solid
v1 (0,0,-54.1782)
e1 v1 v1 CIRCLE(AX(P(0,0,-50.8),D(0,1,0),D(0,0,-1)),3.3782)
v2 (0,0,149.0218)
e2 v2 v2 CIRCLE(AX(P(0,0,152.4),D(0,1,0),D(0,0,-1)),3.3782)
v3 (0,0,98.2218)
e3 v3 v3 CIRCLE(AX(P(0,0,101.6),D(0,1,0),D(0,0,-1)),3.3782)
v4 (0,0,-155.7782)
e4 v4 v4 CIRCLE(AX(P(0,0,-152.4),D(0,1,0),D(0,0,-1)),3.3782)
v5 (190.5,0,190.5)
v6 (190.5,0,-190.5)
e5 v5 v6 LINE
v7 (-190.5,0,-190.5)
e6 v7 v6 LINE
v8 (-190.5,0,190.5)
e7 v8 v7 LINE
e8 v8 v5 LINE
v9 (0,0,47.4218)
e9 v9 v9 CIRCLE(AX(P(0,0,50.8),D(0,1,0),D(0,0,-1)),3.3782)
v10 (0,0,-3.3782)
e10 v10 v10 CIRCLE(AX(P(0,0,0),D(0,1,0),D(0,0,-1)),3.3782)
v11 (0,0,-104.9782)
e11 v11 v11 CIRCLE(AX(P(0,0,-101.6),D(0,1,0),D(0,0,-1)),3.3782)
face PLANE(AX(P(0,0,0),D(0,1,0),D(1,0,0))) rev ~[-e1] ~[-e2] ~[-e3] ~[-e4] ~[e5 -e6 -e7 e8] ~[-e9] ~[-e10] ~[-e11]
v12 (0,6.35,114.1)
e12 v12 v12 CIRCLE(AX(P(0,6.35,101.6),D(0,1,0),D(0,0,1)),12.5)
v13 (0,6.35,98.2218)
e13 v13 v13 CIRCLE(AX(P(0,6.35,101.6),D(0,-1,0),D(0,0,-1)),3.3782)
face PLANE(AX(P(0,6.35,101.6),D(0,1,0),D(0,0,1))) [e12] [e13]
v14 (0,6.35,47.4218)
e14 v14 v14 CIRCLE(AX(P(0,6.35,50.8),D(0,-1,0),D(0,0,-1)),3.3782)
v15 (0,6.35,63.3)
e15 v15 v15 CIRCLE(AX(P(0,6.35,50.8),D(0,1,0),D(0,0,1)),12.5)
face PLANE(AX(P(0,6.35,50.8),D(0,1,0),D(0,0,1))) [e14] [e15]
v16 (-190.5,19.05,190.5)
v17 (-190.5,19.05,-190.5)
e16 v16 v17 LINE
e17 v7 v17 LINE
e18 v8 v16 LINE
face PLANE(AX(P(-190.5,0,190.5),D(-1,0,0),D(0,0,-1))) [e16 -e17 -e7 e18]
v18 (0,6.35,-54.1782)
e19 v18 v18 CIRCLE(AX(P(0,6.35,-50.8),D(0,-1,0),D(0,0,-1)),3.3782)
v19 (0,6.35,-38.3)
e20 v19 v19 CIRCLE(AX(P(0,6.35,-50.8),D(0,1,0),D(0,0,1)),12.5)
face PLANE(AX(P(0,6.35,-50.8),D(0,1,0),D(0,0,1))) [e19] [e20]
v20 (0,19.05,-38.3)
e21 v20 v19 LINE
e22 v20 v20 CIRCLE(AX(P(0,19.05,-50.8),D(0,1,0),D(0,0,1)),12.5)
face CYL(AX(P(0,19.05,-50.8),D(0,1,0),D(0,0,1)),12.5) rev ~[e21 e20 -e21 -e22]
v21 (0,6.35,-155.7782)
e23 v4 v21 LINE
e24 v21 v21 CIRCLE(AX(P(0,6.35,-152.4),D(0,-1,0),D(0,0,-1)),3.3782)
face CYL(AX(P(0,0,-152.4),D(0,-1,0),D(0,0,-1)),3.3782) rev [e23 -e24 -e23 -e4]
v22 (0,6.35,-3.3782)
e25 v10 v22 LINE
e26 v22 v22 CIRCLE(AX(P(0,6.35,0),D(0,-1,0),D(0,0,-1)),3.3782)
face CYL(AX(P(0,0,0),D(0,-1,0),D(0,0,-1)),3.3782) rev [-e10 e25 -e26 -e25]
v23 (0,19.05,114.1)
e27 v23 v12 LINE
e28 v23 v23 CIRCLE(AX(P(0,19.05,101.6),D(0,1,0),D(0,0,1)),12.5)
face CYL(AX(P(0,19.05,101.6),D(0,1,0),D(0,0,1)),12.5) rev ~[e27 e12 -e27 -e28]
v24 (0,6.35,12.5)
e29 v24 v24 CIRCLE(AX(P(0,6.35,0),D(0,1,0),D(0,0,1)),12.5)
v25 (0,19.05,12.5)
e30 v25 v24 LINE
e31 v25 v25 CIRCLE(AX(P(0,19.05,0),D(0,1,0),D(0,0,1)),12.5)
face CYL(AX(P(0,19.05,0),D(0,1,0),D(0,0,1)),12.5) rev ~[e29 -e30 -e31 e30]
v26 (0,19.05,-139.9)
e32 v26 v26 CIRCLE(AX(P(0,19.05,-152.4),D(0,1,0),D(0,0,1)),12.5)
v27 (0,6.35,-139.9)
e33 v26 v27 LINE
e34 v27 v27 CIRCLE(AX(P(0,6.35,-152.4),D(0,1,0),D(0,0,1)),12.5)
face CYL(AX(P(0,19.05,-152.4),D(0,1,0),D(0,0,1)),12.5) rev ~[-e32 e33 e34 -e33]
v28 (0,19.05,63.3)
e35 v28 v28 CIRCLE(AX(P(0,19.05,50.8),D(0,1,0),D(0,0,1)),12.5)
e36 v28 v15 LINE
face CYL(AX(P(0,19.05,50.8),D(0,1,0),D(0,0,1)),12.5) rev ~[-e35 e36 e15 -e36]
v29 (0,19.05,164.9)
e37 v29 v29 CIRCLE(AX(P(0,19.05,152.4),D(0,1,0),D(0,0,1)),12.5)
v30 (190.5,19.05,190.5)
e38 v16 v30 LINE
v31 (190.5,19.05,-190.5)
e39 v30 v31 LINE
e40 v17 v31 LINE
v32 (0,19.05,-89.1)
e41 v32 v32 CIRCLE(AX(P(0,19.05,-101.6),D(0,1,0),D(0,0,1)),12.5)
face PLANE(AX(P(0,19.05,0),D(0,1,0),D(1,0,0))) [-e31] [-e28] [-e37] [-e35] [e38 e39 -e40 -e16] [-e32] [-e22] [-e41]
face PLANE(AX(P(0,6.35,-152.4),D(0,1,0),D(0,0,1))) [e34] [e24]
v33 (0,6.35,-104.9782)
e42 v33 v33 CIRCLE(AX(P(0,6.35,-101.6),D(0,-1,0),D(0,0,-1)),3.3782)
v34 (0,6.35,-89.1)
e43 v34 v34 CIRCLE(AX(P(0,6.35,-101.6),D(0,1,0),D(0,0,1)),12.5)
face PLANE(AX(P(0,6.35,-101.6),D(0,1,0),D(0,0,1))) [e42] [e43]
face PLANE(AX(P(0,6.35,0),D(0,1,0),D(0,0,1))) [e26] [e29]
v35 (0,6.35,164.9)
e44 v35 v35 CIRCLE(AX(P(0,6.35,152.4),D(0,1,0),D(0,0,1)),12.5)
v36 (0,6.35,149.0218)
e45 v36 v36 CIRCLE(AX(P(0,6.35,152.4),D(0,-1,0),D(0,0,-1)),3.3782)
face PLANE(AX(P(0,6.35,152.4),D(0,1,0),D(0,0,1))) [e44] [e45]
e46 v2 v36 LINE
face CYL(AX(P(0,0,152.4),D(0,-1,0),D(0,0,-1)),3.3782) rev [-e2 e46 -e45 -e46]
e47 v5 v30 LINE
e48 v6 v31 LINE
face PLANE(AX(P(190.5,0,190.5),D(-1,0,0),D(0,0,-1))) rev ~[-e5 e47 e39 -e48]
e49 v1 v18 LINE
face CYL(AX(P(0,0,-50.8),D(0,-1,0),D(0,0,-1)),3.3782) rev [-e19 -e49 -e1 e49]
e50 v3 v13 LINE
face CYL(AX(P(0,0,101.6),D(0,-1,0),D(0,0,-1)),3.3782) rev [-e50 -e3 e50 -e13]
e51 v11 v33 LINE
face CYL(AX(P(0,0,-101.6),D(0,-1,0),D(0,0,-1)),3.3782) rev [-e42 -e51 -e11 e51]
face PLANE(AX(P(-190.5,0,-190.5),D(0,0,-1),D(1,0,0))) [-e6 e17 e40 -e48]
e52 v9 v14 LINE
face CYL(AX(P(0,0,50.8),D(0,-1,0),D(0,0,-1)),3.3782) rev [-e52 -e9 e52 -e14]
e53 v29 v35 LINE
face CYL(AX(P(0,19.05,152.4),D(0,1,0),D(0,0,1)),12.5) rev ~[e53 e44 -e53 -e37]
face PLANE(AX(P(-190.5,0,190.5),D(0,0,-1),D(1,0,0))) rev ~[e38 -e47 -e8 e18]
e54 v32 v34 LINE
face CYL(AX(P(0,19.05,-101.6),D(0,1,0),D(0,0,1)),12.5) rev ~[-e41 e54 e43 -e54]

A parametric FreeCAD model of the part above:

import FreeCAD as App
import Part
import Sketcher
from FreeCAD import Vector
Q = App.Units.Quantity


def add_polygon(sketch, points):
    """Adds a closed chain of lines whose ends are joined by coincident constraints."""
    first, n = sketch.GeometryCount, len(points)
    for a, b in zip(points, points[1:] + points[:1]):
        sketch.addGeometry(Part.LineSegment(App.Vector(*a, 0), App.Vector(*b, 0)), False)
    for i in range(n):
        sketch.addConstraint(Sketcher.Constraint("Coincident", first + i, 2, first + (i + 1) % n, 1))

doc = App.newDocument("Part")
body = doc.addObject("PartDesign::Body", "Body")

# Sketch on XZ plane
sketch1 = body.newObject("Sketcher::SketchObject", "Sketch")
sketch1.AttachmentSupport = (doc.getObject("XZ_Plane"), [""])
sketch1.MapMode = "FlatFace"
add_polygon(sketch1, [(-190.5, -190.5), (-190.5, 190.5), (190.5, 190.5), (190.5, -190.5)])  # lines 0-3
sketch1.addGeometry(Part.Circle(Vector(0, 152.4, 0), Vector(0, 0, 1), 3.3782), False)  # 4
sketch1.addGeometry(Part.Circle(Vector(0, 101.6, 0), Vector(0, 0, 1), 3.3782), False)  # 5
sketch1.addGeometry(Part.Circle(Vector(0, 50.8, 0), Vector(0, 0, 1), 3.3782), False)  # 6
sketch1.addGeometry(Part.Circle(Vector(0, 0, 0), Vector(0, 0, 1), 3.3782), False)  # 7
sketch1.addGeometry(Part.Circle(Vector(0, -50.8, 0), Vector(0, 0, 1), 3.3782), False)  # 8
sketch1.addGeometry(Part.Circle(Vector(0, -101.6, 0), Vector(0, 0, 1), 3.3782), False)  # 9
sketch1.addGeometry(Part.Circle(Vector(0, -152.4, 0), Vector(0, 0, 1), 3.3782), False)  # 10
sketch1.addConstraint([
    Sketcher.Constraint("Vertical", 0),
    Sketcher.Constraint("Horizontal", 1),
    Sketcher.Constraint("Vertical", 2),
    Sketcher.Constraint("Horizontal", 3),
    Sketcher.Constraint("Coincident", 7, 3, -1, 1),
    Sketcher.Constraint("Equal", 4, 5),
    Sketcher.Constraint("Equal", 5, 6),
    Sketcher.Constraint("Equal", 6, 7),
    Sketcher.Constraint("Equal", 7, 8),
    Sketcher.Constraint("Equal", 8, 9),
    Sketcher.Constraint("Equal", 9, 10),
    Sketcher.Constraint("Symmetric", 6, 3, 8, 3, -1, 1),
    Sketcher.Constraint("Symmetric", 5, 3, 9, 3, -1, 1),
    Sketcher.Constraint("Symmetric", 4, 3, 10, 3, -1, 1),
    Sketcher.Constraint("Symmetric", 0, 2, 2, 2, -1, 1),
    Sketcher.Constraint("PointOnObject", 4, 3, -2),
    Sketcher.Constraint("PointOnObject", 5, 3, -2),
    Sketcher.Constraint("PointOnObject", 6, 3, -2),
    Sketcher.Constraint("Equal", 3, 0),
    Sketcher.Constraint("DistanceX", 1, 1, 1, 2, Q("15 in")),
    Sketcher.Constraint("Diameter", 4, Q("0.266 in")),
    Sketcher.Constraint("DistanceY", -1, 1, 4, 3, Q("6 in")),
    Sketcher.Constraint("DistanceY", -1, 1, 5, 3, Q("4 in")),
    Sketcher.Constraint("DistanceY", -1, 1, 6, 3, Q("2 in")),
])
pad1 = body.newObject("PartDesign::Pad", "Pad")
pad1.Profile = sketch1
pad1.Length = Q("0.75 in")
pad1.Reversed = True

# Sketch on XZ plane
sketch2 = body.newObject("Sketcher::SketchObject", "Sketch001")
sketch2.AttachmentSupport = (doc.getObject("XZ_Plane"), [""])
sketch2.MapMode = "FlatFace"
sketch2.AttachmentOffset = App.Placement(Vector(0, 0, -0.75 * 25.4), App.Rotation())
sketch2.addGeometry([
    Part.Circle(Vector(0, 50.8, 0), Vector(0, 0, 1), 12.5),  # 0
    Part.Circle(Vector(0, 0, 0), Vector(0, 0, 1), 12.5),  # 1
    Part.Circle(Vector(0, 101.6, 0), Vector(0, 0, 1), 12.5),  # 2
    Part.Circle(Vector(0, -50.8, 0), Vector(0, 0, 1), 12.5),  # 3
    Part.Circle(Vector(0, -101.6, 0), Vector(0, 0, 1), 12.5),  # 4
    Part.Circle(Vector(0, -152.4, 0), Vector(0, 0, 1), 12.5),  # 5
    Part.Circle(Vector(0, 152.4, 0), Vector(0, 0, 1), 12.5),  # 6
], False)
sketch2.addConstraint([
    Sketcher.Constraint("Coincident", 1, 3, -1, 1),
    Sketcher.Constraint("Equal", 0, 1),
    Sketcher.Constraint("Equal", 1, 2),
    Sketcher.Constraint("Equal", 2, 3),
    Sketcher.Constraint("Equal", 3, 4),
    Sketcher.Constraint("Equal", 4, 5),
    Sketcher.Constraint("Equal", 5, 6),
    Sketcher.Constraint("Symmetric", 0, 3, 3, 3, -1, 1),
    Sketcher.Constraint("Symmetric", 2, 3, 4, 3, -1, 1),
    Sketcher.Constraint("Symmetric", 5, 3, 6, 3, -1, 1),
    Sketcher.Constraint("PointOnObject", 0, 3, -2),
    Sketcher.Constraint("PointOnObject", 2, 3, -2),
    Sketcher.Constraint("PointOnObject", 5, 3, -2),
    Sketcher.Constraint("DistanceY", -1, 1, 0, 3, Q("2 in")),
    Sketcher.Constraint("DistanceY", -1, 1, 2, 3, Q("4 in")),
    Sketcher.Constraint("DistanceY", 5, 3, -1, 1, Q("6 in")),
    Sketcher.Constraint("Diameter", 0, Q("25 mm")),
])
pocket1 = body.newObject("PartDesign::Pocket", "Pocket")
pocket1.Profile = sketch2
pocket1.Length = Q("0.5 in")
pocket1.Reversed = True

doc.recompute()
